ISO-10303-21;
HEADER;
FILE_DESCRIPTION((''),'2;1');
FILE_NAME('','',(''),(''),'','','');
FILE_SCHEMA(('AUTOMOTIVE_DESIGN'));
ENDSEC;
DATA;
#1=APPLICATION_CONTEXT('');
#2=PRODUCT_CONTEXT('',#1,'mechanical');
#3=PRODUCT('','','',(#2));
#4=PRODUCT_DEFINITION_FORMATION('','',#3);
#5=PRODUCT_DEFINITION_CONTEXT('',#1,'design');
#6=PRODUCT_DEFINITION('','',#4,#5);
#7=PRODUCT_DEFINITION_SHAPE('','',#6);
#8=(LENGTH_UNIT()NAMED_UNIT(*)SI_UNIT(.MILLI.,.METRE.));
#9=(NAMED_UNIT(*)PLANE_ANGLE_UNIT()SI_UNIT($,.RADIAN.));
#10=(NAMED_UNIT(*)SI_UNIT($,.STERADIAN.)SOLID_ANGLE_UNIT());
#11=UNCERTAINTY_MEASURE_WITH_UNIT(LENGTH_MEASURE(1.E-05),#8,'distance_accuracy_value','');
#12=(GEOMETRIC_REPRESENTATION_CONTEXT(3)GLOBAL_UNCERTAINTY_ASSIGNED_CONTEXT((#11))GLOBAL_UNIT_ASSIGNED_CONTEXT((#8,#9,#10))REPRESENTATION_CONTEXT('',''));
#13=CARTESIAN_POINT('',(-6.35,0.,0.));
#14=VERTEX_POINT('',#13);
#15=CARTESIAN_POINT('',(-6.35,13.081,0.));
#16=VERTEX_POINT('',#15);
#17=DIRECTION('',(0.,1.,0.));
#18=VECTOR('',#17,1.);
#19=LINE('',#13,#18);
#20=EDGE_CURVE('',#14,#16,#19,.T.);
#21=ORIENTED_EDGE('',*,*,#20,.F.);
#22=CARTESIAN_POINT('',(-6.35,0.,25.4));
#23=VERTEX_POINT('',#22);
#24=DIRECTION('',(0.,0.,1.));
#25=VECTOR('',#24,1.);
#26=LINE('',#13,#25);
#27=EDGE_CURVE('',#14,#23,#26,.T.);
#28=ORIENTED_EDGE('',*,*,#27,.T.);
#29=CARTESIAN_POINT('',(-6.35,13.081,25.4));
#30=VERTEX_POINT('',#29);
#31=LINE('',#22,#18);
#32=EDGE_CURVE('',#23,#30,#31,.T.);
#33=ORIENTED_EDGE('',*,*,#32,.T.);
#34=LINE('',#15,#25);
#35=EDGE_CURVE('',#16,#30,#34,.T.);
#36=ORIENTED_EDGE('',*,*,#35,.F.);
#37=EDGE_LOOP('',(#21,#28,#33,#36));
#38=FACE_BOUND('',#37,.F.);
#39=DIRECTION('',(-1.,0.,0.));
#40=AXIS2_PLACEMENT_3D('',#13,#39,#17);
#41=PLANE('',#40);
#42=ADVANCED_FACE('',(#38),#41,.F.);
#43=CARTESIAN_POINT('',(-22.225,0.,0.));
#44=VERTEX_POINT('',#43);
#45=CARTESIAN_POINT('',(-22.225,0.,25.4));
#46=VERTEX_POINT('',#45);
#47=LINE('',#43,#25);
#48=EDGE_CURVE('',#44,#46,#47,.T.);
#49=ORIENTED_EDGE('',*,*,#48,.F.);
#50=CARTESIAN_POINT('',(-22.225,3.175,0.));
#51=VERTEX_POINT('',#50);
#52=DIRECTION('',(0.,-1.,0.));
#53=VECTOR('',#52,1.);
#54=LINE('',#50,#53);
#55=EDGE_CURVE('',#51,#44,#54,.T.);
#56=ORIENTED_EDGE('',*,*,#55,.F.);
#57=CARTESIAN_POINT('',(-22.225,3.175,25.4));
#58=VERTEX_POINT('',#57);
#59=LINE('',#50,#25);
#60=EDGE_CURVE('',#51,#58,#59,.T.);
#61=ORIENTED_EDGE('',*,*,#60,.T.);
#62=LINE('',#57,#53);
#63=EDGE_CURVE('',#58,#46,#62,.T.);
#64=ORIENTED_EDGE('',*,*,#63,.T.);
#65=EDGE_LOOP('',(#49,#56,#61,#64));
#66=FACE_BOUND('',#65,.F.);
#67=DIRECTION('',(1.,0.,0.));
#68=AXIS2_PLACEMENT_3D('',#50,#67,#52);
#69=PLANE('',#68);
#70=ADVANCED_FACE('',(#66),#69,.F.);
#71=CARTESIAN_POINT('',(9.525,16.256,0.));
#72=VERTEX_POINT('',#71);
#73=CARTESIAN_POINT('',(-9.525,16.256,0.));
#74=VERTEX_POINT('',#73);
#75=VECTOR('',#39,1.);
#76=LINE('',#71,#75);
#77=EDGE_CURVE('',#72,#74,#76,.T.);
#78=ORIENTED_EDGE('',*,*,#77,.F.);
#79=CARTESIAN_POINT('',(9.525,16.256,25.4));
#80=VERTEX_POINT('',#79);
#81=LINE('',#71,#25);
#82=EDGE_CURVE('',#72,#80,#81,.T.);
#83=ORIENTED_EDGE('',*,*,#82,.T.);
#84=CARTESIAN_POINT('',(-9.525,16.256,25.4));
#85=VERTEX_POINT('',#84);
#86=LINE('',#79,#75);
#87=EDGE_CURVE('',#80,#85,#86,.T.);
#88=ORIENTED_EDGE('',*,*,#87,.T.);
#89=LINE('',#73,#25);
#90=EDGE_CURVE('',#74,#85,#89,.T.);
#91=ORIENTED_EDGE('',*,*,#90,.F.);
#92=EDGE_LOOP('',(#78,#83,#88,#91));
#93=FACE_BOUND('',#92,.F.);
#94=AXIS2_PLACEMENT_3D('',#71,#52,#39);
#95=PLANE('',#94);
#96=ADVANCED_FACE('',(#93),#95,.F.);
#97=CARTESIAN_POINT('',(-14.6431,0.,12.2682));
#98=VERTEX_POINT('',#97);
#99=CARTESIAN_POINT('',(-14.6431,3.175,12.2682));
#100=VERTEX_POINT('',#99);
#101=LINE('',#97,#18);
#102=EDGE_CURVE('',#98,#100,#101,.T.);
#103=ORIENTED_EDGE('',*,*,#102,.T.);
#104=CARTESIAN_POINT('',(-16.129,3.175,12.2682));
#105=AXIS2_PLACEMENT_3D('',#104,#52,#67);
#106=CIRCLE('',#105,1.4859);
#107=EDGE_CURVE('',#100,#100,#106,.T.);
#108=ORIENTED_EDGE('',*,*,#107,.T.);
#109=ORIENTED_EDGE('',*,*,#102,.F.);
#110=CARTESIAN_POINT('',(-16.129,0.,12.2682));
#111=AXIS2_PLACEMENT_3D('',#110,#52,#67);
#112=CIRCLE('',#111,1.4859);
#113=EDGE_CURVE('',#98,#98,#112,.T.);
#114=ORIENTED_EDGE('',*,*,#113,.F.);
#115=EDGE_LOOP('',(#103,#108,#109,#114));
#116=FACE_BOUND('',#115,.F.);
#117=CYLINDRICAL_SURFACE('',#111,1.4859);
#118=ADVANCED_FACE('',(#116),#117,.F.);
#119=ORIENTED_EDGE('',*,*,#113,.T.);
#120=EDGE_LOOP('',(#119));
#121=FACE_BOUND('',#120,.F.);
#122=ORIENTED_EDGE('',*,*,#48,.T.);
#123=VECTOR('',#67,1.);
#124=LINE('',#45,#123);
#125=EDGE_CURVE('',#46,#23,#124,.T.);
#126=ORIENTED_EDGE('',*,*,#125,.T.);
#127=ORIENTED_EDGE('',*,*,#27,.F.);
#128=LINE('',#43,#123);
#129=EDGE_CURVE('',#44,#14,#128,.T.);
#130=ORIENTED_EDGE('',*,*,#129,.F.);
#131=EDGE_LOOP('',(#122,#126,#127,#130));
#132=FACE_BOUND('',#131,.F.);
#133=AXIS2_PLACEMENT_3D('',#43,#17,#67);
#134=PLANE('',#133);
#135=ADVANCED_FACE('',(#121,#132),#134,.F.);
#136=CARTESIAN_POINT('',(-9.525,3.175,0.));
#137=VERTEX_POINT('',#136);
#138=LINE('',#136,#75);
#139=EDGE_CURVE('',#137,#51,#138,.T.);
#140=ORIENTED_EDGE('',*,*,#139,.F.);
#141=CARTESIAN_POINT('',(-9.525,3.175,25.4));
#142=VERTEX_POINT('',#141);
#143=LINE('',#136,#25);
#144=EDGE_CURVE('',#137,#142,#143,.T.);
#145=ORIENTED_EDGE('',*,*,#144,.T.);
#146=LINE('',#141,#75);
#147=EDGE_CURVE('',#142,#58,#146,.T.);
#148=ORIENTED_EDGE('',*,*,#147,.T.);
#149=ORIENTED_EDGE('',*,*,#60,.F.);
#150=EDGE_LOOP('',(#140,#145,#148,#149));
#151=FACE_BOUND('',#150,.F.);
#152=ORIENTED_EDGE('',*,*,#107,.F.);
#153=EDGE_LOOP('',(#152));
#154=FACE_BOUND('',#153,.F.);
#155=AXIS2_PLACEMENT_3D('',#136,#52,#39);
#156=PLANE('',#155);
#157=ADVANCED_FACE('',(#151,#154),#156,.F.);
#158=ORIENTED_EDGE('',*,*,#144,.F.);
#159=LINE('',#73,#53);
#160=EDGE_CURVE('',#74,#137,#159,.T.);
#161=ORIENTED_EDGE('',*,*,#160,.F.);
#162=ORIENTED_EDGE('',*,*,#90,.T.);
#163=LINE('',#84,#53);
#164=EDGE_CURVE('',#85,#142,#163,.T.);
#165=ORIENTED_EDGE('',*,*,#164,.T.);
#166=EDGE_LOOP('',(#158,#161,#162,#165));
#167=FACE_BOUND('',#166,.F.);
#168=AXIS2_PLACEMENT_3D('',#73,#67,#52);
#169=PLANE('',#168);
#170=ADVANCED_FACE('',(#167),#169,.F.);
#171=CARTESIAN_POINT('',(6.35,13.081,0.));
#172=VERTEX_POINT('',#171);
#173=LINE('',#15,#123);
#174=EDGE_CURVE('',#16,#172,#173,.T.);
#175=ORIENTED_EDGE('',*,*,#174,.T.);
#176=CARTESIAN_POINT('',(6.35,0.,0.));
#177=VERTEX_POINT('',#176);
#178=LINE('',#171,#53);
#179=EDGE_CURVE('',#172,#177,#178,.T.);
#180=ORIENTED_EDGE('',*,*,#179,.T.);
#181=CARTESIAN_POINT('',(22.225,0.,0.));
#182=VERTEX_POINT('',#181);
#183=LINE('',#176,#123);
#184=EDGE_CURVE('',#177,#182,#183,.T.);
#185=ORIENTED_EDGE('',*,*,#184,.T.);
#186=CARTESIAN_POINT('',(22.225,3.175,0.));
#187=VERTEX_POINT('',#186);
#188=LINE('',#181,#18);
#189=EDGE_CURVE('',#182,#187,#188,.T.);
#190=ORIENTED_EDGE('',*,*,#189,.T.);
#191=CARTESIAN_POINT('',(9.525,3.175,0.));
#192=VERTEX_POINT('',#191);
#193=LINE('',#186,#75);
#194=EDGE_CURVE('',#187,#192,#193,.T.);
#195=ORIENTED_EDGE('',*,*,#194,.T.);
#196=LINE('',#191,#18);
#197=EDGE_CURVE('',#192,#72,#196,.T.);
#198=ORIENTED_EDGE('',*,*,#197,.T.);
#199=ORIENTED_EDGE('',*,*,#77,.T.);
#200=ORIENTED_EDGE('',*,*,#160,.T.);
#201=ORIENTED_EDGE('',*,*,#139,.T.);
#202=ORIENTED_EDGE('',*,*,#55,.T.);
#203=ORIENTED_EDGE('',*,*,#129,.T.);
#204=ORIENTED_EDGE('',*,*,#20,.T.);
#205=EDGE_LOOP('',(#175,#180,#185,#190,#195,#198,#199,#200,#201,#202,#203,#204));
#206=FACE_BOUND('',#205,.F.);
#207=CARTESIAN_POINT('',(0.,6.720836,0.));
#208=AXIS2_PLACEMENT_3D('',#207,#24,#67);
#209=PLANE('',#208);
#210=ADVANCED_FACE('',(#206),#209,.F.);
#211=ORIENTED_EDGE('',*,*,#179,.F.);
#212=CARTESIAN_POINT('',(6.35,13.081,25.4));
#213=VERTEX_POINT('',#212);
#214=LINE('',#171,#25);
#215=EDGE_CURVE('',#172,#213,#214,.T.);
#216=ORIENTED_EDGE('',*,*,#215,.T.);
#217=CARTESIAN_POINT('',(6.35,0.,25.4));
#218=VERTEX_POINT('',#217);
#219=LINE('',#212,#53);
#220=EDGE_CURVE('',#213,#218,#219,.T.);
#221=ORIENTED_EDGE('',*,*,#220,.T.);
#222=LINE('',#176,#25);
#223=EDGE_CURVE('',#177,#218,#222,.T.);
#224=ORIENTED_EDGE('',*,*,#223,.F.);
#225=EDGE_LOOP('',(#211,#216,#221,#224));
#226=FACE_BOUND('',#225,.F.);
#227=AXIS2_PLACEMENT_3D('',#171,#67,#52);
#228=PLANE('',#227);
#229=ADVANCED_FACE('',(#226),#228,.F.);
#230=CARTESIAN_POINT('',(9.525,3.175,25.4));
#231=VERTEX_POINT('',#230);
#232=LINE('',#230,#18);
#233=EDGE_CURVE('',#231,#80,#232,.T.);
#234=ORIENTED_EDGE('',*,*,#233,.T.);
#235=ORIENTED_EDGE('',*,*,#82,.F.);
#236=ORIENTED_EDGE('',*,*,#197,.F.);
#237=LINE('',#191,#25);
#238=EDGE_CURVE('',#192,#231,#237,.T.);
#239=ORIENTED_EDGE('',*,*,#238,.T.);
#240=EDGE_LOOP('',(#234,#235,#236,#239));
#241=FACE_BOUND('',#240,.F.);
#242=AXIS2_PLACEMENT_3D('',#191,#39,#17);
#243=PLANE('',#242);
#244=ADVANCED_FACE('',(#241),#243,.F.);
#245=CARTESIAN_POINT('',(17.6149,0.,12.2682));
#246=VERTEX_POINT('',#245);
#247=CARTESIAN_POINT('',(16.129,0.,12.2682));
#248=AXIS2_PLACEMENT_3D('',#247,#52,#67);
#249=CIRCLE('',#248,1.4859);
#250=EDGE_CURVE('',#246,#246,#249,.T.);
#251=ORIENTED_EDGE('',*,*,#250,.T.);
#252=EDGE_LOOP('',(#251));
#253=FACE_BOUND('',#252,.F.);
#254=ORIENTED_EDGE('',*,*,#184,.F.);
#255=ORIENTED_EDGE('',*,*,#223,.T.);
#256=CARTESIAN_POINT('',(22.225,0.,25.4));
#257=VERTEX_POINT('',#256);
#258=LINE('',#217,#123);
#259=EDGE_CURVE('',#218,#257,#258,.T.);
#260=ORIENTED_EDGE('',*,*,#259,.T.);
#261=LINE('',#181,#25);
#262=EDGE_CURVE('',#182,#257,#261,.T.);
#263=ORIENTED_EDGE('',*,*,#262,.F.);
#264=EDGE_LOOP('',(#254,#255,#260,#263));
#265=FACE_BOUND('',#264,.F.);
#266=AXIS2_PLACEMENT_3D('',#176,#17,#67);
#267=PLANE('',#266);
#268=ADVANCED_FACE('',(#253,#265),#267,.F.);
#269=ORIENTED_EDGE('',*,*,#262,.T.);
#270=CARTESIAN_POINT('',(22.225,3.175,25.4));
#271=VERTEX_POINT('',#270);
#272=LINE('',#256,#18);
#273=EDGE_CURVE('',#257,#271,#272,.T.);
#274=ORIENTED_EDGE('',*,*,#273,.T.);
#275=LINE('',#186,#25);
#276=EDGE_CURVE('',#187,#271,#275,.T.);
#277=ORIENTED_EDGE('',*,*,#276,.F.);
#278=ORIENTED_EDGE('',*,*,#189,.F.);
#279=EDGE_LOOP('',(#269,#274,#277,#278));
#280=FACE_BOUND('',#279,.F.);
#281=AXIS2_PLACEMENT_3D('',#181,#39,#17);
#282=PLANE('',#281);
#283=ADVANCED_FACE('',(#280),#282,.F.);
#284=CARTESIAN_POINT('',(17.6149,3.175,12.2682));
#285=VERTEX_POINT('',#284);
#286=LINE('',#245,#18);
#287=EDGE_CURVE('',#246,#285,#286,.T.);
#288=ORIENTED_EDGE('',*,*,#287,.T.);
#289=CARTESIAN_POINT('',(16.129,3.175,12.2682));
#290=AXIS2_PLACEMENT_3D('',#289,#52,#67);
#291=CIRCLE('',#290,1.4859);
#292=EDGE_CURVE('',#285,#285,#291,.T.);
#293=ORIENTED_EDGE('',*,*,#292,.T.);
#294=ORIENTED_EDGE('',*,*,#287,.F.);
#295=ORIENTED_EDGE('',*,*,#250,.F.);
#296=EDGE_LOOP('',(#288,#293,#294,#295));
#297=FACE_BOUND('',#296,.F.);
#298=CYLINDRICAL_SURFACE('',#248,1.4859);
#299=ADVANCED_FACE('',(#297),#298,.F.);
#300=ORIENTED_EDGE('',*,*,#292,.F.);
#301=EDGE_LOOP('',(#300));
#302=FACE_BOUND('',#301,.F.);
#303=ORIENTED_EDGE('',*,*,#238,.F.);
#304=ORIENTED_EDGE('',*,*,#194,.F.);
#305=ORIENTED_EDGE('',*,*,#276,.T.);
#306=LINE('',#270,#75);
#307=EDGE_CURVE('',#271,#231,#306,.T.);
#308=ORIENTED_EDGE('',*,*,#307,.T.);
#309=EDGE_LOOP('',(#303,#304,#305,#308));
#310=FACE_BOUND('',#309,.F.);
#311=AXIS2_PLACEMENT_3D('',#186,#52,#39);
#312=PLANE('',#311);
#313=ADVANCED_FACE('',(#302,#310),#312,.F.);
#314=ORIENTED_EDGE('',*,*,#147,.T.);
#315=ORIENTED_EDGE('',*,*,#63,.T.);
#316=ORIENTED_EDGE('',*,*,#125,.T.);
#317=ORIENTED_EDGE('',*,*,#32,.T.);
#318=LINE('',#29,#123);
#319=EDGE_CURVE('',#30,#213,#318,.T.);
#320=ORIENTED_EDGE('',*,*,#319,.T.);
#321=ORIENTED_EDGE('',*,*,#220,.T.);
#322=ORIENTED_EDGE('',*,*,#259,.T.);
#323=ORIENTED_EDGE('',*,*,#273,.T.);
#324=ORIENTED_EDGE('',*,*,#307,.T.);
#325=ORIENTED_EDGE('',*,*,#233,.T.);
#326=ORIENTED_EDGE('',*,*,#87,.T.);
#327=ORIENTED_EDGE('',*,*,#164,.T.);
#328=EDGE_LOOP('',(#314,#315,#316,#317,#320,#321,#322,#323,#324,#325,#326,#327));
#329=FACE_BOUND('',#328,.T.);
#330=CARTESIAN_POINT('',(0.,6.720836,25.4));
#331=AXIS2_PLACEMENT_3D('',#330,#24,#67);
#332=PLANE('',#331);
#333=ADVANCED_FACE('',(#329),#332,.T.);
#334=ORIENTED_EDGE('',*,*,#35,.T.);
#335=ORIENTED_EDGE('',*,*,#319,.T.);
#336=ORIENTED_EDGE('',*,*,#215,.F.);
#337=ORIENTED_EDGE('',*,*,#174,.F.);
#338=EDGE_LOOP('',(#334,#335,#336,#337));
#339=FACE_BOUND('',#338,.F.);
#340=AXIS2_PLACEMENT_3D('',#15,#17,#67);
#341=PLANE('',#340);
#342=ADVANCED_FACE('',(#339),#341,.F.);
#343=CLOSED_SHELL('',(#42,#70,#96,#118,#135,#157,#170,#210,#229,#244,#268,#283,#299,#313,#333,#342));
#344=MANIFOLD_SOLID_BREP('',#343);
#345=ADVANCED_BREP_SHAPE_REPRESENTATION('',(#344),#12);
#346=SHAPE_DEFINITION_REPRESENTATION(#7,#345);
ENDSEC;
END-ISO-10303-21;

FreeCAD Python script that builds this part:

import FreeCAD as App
import Part
import Sketcher
from FreeCAD import Vector
Q = App.Units.Quantity


def add_polygon(sketch, points):
    """Adds a closed chain of lines whose ends are joined by coincident constraints."""
    first, n = sketch.GeometryCount, len(points)
    for a, b in zip(points, points[1:] + points[:1]):
        sketch.addGeometry(Part.LineSegment(App.Vector(*a, 0), App.Vector(*b, 0)), False)
    for i in range(n):
        sketch.addConstraint(Sketcher.Constraint("Coincident", first + i, 2, first + (i + 1) % n, 1))

doc = App.newDocument("Part")
body = doc.addObject("PartDesign::Body", "Body")

# Sketch on XY plane
sketch1 = body.newObject("Sketcher::SketchObject", "Sketch")
sketch1.AttachmentSupport = (doc.getObject("XY_Plane"), [""])
sketch1.MapMode = "FlatFace"
add_polygon(sketch1, [(-22.2, 3.2), (-22.2, 0), (-6.3, 0), (-6.3, 13.1), (6.3, 13.1), (6.3, 0), (22.2, 0), (22.2, 3.2), (9.5, 3.2), (9.5, 16.3), (-9.5, 16.3), (-9.5, 3.2)])  # lines 0-11
sketch1.addConstraint([
    Sketcher.Constraint("Vertical", 0),
    Sketcher.Constraint("Horizontal", 1),
    Sketcher.Constraint("Vertical", 2),
    Sketcher.Constraint("Horizontal", 3),
    Sketcher.Constraint("Vertical", 4),
    Sketcher.Constraint("Horizontal", 5),
    Sketcher.Constraint("Vertical", 6),
    Sketcher.Constraint("Horizontal", 7),
    Sketcher.Constraint("Vertical", 8),
    Sketcher.Constraint("Horizontal", 9),
    Sketcher.Constraint("Vertical", 10),
    Sketcher.Constraint("Horizontal", 11),
    Sketcher.Constraint("Symmetric", 1, 2, 4, 2, -1, 1),
    Sketcher.Constraint("Symmetric", 0, 2, 5, 2, -2),
    Sketcher.Constraint("Symmetric", 7, 2, 10, 2, -2),
    Sketcher.Constraint("Equal", 3, 7),
    Sketcher.Constraint("Equal", 4, 8),
    Sketcher.Constraint("DistanceX", 3, 1, 3, 2, Q("0.5 in")),
    Sketcher.Constraint("DistanceX", 9, 2, 9, 1, Q("0.75 in")),
    Sketcher.Constraint("DistanceY", 0, 2, 0, 1, Q("0.125 in")),
    Sketcher.Constraint("DistanceY", 2, 1, 2, 2, Q("0.515 in")),
])
pad1 = body.newObject("PartDesign::Pad", "Pad")
pad1.Profile = sketch1
pad1.Length = Q("1 in")

# Sketch on XZ plane
sketch2 = body.newObject("Sketcher::SketchObject", "Sketch001")
sketch2.AttachmentSupport = (doc.getObject("XZ_Plane"), [""])
sketch2.MapMode = "FlatFace"
sketch2.addGeometry([
    Part.Circle(Vector(-16.1, 12.3, 0), Vector(0, 0, 1), 1.5),
    Part.Circle(Vector(16.1, 12.3, 0), Vector(0, 0, 1), 1.5),
], False)
sketch2.addConstraint([
    Sketcher.Constraint("Equal", 0, 1),
    Sketcher.Constraint("Symmetric", 0, 3, 1, 3, -2),
    Sketcher.Constraint("Diameter", 0, Q("0.117 in")),
    Sketcher.Constraint("DistanceX", 0, 3, 1, 3, Q("1.27 in")),
    Sketcher.Constraint("DistanceY", -1, 1, 0, 3, Q("0.483 in")),
])
pocket1 = body.newObject("PartDesign::Pocket", "Pocket")
pocket1.Profile = sketch2
pocket1.Type = "ThroughAll"

doc.recompute()
